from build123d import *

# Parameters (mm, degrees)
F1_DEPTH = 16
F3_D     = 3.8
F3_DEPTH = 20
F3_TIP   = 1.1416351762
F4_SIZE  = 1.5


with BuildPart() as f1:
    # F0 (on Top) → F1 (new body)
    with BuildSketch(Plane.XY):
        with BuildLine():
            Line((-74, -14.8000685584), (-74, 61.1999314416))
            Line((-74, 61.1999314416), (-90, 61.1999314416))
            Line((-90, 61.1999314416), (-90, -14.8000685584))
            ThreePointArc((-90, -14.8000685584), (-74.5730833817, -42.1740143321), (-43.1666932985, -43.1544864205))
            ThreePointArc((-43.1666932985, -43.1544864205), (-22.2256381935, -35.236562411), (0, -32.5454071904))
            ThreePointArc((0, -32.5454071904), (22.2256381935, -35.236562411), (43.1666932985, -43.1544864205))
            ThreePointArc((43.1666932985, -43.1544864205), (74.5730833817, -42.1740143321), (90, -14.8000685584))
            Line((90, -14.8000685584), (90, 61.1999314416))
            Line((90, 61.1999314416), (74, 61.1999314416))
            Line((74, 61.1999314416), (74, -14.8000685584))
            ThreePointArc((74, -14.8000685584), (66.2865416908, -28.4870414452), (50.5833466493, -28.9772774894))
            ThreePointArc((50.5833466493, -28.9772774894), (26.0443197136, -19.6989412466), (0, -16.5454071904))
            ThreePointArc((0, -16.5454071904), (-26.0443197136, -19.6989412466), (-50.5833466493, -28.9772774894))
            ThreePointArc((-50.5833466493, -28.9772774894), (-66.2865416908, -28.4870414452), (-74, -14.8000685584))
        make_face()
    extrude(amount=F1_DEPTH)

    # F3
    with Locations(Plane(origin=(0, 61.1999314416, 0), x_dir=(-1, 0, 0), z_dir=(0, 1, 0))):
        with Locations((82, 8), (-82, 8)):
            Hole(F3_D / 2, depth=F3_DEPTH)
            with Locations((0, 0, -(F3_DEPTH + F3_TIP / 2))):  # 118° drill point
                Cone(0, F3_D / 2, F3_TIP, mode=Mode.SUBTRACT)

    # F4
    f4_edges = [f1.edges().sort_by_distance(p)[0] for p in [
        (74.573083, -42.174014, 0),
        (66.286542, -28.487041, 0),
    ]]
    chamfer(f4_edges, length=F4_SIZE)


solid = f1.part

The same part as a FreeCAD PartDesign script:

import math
import FreeCAD as App
import Part
import Sketcher

V = App.Vector
Q = App.Units.Quantity


def edges_at(feature, points):
    """Names of the edges that pass closest to the given points."""
    edges = feature.Shape.Edges
    near = lambda p: min(range(len(edges)), key=lambda i: edges[i].distToShape(Part.Vertex(*p))[0])
    return sorted({f"Edge{near(p) + 1}" for p in points})

doc = App.newDocument("Part")
body = doc.addObject("PartDesign::Body", "Body")

sketch1 = body.newObject("Sketcher::SketchObject", "Sketch")
sketch1.AttachmentSupport = (doc.getObject("XY_Plane"), [""])
sketch1.MapMode = "FlatFace"
sketch1.addGeometry([
    Part.LineSegment(V(-74, -14.800069, 0), V(-74, 61.199931, 0)),
    Part.LineSegment(V(-74, 61.199931, 0), V(-90, 61.199931, 0)),
    Part.LineSegment(V(-90, 61.199931, 0), V(-90, -14.800069, 0)),
    Part.ArcOfCircle(Part.Circle(V(-58, -14.800069, 0), V(0, 0, 1), 32), math.radians(180), math.radians(297.615828)),
    Part.ArcOfCircle(Part.Circle(V(0, -125.669227, 0), V(0, 0, 1), 93.12382), math.radians(90), math.radians(117.615828)),
    Part.ArcOfCircle(Part.Circle(V(0, -125.669227, 0), V(0, 0, 1), 93.12382), math.radians(62.384172), math.radians(90)),
    Part.ArcOfCircle(Part.Circle(V(58, -14.800069, 0), V(0, 0, 1), 32), math.radians(-117.615828), math.radians(0)),
    Part.LineSegment(V(90, -14.800069, 0), V(90, 61.199931, 0)),
    Part.LineSegment(V(90, 61.199931, 0), V(74, 61.199931, 0)),
    Part.LineSegment(V(74, 61.199931, 0), V(74, -14.800069, 0)),
    Part.ArcOfCircle(Part.Circle(V(58, -14.800069, 0), V(0, 0, 1), 16), math.radians(-117.615828), math.radians(0)),
    Part.ArcOfCircle(Part.Circle(V(0, -125.669227, 0), V(0, 0, 1), 109.12382), math.radians(62.384172), math.radians(90)),
    Part.ArcOfCircle(Part.Circle(V(0, -125.669227, 0), V(0, 0, 1), 109.12382), math.radians(90), math.radians(117.615828)),
    Part.ArcOfCircle(Part.Circle(V(-58, -14.800069, 0), V(0, 0, 1), 16), math.radians(180), math.radians(297.615828)),
], False)
sketch1.addConstraint([
    Sketcher.Constraint("Coincident", 0, 2, 1, 1),
    Sketcher.Constraint("Coincident", 1, 2, 2, 1),
    Sketcher.Constraint("Tangent", 2, 2, 3, 1),
    Sketcher.Constraint("Tangent", 3, 2, 4, 2),
    Sketcher.Constraint("Tangent", 4, 1, 5, 2),
    Sketcher.Constraint("Tangent", 5, 1, 6, 1),
    Sketcher.Constraint("Tangent", 6, 2, 7, 1),
    Sketcher.Constraint("Coincident", 7, 2, 8, 1),
    Sketcher.Constraint("Coincident", 8, 2, 9, 1),
    Sketcher.Constraint("Tangent", 9, 2, 10, 2),
    Sketcher.Constraint("Tangent", 10, 1, 11, 1),
    Sketcher.Constraint("Tangent", 11, 2, 12, 1),
    Sketcher.Constraint("Tangent", 12, 2, 13, 2),
    Sketcher.Constraint("Tangent", 13, 1, 0, 1),
    Sketcher.Constraint("Vertical", 0),
    Sketcher.Constraint("Horizontal", 1),
    Sketcher.Constraint("Vertical", 2),
    Sketcher.Constraint("Vertical", 7),
    Sketcher.Constraint("Horizontal", 8),
    Sketcher.Constraint("Vertical", 9),
    Sketcher.Constraint("Coincident", 10, 3, 6, 3),
    Sketcher.Constraint("Coincident", 11, 3, 4, 3),
    Sketcher.Constraint("Coincident", 13, 3, 3, 3),
    Sketcher.Constraint("Equal", 4, 5),
    Sketcher.Constraint("Equal", 3, 6),
    Sketcher.Constraint("Equal", 11, 12),
    Sketcher.Constraint("Symmetric", 3, 3, 6, 3, -2),
    Sketcher.Constraint("PointOnObject", 4, 1, -2),
    Sketcher.Constraint("PointOnObject", 11, 2, -2),
    Sketcher.Constraint("Horizontal", 1, 2, 7, 2),
    Sketcher.Constraint("Radius", 3, Q("32 mm")),
    Sketcher.Constraint("Radius", 10, Q("16 mm")),
    Sketcher.Constraint("DistanceY", 0, 1, 0, 2, Q("76 mm")),
    Sketcher.Constraint("DistanceX", 3, 3, -1, 1, Q("58 mm")),
    Sketcher.Constraint("Radius", 4, Q("93.12382 mm")),
    Sketcher.Constraint("DistanceY", 3, 3, -1, 1, Q("14.800069 mm")),
])
pad1 = body.newObject("PartDesign::Pad", "Pad")
pad1.Profile = sketch1
pad1.Length = 16

sketch2 = body.newObject("Sketcher::SketchObject", "Sketch001")
sketch2.AttachmentSupport = (doc.getObject("XZ_Plane"), [""])
sketch2.MapMode = "FlatFace"
sketch2.AttachmentOffset = App.Placement(V(0, 0, -61.199931), App.Rotation())
sketch2.addGeometry([
    Part.Circle(V(-82, 8, 0), V(0, 0, 1), 1.9),
    Part.Circle(V(82, 8, 0), V(0, 0, 1), 1.9),
], False)
sketch2.addConstraint([
    Sketcher.Constraint("Equal", 0, 1),
    Sketcher.Constraint("Symmetric", 0, 3, 1, 3, -2),
    Sketcher.Constraint("Diameter", 0, Q("3.8 mm")),
    Sketcher.Constraint("DistanceX", 0, 3, -1, 1, Q("82 mm")),
    Sketcher.Constraint("DistanceY", -1, 1, 0, 3, Q("8 mm")),
])
doc.recompute()
hole = body.newObject("PartDesign::Hole", "Hole")
hole.Profile = sketch2
hole.ThreadType = "None"
hole.Diameter = 3.8
hole.DepthType = "Dimension"
hole.Depth = 20
hole.DrillPoint = "Angled"
hole.DrillPointAngle = 118
hole.Reversed = True
doc.recompute()

chamfer = body.newObject("PartDesign::Chamfer", "Chamfer")
chamfer.Base = (hole, edges_at(hole, [(74.573, -42.174, 0), (66.287, -28.487, 0)]))
chamfer.Size = 1.5

doc.recompute()
